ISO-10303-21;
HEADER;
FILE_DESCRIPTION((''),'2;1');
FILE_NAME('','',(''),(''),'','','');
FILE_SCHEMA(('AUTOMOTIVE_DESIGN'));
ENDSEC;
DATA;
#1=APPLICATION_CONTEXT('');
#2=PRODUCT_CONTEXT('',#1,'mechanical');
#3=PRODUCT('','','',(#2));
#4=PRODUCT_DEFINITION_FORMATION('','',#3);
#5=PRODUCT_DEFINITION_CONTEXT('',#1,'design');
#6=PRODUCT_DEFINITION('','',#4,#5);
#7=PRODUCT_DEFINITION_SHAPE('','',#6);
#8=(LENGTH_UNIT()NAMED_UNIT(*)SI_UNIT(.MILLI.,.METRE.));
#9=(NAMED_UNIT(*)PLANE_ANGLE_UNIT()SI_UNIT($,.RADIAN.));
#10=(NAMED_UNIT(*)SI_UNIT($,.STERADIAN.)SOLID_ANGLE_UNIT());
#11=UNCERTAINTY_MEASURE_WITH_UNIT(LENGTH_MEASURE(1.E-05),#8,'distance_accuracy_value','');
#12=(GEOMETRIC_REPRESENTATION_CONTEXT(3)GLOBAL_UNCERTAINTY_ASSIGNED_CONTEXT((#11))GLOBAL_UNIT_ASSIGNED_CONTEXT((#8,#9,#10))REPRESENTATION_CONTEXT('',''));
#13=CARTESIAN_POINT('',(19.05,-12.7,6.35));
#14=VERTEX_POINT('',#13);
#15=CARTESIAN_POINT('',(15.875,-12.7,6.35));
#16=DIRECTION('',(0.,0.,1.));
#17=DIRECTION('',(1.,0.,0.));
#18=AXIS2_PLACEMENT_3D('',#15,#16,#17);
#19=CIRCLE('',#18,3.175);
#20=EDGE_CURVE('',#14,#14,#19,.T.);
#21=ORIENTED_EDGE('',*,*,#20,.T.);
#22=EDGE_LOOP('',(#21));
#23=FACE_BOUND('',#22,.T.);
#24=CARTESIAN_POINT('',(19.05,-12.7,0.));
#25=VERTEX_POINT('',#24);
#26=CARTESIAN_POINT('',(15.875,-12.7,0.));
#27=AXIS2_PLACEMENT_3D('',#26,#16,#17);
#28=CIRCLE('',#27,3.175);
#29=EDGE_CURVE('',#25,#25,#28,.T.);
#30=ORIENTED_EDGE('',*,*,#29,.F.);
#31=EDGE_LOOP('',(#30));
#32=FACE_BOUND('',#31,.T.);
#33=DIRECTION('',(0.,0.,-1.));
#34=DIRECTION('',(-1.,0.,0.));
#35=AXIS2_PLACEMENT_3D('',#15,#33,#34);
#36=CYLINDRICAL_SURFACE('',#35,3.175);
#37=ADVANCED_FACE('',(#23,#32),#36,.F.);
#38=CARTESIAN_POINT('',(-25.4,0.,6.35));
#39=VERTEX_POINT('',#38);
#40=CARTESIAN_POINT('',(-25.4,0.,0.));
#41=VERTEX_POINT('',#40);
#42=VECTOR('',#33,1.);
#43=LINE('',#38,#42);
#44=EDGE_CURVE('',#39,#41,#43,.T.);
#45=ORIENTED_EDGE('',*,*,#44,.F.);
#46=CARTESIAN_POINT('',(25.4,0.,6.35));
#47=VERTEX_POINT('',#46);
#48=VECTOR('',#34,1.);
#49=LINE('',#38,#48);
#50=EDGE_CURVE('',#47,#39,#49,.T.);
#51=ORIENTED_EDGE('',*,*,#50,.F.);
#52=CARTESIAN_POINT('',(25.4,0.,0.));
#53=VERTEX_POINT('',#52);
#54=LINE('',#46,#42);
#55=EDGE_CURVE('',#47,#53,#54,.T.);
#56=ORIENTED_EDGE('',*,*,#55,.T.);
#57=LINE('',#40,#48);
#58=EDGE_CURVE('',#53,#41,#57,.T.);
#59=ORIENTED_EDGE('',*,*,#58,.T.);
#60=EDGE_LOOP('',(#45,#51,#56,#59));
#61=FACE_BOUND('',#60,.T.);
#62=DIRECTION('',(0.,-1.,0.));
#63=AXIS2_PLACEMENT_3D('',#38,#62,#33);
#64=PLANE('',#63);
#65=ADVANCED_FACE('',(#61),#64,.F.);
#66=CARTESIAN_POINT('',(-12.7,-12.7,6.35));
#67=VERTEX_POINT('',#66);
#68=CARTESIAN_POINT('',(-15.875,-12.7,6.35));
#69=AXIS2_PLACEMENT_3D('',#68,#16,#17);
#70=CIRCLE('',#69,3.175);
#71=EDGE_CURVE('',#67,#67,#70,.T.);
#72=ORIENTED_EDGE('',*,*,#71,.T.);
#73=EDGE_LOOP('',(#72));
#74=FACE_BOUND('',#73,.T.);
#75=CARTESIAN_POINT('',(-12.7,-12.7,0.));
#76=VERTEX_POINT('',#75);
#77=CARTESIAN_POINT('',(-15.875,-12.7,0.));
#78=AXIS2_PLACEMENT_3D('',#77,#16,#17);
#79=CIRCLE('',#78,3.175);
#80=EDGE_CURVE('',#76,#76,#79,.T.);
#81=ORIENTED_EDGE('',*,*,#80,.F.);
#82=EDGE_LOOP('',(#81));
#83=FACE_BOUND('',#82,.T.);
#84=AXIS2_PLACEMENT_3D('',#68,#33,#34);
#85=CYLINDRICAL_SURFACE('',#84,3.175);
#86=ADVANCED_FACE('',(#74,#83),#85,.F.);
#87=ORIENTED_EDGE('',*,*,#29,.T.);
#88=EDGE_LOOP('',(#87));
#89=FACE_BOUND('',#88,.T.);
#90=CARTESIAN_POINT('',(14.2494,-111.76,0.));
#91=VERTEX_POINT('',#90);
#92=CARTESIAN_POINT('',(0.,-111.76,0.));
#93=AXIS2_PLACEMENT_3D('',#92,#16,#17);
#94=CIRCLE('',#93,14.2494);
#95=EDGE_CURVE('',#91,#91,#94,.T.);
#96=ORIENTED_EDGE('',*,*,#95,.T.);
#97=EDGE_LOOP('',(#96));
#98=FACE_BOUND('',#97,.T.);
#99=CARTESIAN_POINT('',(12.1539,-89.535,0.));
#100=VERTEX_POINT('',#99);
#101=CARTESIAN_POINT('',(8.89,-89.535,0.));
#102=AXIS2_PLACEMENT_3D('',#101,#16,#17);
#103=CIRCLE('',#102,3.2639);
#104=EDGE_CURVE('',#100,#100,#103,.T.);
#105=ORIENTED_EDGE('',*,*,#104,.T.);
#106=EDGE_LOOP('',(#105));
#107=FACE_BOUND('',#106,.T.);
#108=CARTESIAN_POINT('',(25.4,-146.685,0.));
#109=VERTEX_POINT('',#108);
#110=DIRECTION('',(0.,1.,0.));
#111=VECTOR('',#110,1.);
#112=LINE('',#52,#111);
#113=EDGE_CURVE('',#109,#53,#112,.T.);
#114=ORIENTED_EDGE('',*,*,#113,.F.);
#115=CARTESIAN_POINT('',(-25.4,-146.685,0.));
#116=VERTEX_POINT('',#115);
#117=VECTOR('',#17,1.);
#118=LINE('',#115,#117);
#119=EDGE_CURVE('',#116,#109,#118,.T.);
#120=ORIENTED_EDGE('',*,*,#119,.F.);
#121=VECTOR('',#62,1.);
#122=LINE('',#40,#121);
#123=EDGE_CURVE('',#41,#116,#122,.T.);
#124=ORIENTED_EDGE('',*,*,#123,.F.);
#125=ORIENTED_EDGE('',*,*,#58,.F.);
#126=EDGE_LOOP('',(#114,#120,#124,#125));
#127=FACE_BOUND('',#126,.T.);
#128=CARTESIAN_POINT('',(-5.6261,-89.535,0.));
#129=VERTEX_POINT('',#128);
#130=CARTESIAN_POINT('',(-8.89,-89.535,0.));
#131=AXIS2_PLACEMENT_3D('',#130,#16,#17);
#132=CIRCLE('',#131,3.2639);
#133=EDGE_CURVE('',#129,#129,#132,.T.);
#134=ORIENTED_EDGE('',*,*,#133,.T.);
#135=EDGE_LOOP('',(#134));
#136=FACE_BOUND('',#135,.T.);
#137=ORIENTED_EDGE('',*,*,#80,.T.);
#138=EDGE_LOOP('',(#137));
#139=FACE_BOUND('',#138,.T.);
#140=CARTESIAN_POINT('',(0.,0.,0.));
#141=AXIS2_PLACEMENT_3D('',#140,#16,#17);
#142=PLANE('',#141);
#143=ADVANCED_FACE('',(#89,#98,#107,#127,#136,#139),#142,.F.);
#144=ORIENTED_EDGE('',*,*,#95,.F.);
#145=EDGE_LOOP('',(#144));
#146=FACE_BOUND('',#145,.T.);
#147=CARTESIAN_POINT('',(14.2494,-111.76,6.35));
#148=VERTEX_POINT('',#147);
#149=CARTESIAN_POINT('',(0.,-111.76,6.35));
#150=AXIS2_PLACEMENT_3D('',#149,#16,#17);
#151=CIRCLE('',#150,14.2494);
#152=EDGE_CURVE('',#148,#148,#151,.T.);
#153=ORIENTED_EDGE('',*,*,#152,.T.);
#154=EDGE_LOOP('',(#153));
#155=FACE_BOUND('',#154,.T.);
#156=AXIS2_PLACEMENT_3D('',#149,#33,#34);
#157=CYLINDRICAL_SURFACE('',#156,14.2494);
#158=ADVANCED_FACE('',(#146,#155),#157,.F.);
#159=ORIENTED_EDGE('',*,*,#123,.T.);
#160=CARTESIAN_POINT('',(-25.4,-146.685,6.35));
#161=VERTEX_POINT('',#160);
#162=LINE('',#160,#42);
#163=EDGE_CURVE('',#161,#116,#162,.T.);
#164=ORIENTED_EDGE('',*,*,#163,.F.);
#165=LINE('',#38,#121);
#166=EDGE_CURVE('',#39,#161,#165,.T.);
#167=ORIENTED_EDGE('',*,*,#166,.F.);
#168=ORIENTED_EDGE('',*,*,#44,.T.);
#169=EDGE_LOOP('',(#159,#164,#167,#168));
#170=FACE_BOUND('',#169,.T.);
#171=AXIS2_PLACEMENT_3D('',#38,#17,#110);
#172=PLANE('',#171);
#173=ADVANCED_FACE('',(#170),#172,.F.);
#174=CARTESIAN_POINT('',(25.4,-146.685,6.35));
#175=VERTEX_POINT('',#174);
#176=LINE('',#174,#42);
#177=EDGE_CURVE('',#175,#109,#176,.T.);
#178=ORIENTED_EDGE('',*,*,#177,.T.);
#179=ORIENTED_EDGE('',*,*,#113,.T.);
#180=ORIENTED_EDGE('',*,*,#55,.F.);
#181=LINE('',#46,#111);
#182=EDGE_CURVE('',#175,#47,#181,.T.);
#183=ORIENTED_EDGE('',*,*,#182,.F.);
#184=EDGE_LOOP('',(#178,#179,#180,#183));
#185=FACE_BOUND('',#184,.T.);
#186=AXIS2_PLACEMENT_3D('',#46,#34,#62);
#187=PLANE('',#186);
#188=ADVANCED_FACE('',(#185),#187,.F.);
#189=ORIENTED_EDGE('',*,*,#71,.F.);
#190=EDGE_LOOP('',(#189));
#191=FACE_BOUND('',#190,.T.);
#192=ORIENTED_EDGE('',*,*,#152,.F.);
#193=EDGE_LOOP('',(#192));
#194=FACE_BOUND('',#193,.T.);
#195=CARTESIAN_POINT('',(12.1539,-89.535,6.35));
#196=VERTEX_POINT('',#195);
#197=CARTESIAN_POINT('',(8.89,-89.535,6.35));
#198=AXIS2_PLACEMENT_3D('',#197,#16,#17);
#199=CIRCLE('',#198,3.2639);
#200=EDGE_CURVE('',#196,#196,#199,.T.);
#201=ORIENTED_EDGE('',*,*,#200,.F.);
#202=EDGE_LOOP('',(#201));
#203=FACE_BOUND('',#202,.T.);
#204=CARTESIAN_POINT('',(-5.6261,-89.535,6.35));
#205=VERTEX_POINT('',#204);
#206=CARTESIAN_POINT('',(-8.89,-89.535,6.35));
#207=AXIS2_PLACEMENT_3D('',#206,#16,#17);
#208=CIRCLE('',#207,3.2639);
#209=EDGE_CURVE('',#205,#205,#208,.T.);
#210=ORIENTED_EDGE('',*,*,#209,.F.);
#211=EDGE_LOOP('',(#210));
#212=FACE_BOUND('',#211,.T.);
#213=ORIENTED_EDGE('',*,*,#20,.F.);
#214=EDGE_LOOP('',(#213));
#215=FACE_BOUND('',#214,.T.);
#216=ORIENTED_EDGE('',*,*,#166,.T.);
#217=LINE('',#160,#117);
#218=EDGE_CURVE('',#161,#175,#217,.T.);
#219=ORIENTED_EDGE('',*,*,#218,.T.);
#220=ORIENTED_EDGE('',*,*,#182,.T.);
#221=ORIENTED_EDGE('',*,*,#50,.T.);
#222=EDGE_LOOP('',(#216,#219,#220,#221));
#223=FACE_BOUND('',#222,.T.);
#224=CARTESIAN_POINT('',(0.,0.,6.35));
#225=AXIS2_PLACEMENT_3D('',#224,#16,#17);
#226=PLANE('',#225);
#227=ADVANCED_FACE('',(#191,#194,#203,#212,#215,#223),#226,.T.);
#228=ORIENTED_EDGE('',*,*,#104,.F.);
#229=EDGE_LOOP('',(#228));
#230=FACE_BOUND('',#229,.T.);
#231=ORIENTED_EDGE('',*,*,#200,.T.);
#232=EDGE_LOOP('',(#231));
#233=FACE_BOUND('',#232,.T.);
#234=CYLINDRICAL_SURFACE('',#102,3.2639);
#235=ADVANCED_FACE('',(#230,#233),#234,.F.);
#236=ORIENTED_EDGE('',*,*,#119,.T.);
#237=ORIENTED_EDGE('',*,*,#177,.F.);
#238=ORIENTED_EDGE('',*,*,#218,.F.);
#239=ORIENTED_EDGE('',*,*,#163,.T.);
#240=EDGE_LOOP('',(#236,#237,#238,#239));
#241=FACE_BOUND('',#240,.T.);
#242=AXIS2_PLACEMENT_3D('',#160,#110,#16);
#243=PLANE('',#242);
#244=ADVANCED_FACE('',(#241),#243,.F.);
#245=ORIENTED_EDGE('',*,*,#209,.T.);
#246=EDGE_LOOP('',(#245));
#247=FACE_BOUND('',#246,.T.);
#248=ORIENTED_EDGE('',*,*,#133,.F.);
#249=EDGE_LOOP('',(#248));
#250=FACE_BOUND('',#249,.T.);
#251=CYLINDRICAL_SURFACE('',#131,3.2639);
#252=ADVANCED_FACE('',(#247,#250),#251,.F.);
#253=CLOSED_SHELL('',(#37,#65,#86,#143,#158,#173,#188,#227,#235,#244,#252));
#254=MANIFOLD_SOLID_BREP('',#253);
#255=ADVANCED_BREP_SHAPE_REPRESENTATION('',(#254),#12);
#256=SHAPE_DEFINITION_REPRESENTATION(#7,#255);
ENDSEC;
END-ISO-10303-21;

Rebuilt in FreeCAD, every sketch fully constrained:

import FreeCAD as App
import Part
import Sketcher

V = App.Vector
Q = App.Units.Quantity

doc = App.newDocument("Part")
params = doc.addObject("Spreadsheet::Sheet", "Params")
for row, (alias, value) in enumerate([
    ("sketch1_diameter", "0.25 in"),
    ("sketch1_width", "2 in"),
    ("sketch1_diameter2", "1.122 in"),
    ("sketch1_height", "5.775 in"),
    ("pad1_length", "0.25 in"),
    ("sketch2_diameter", "0.257 in"),
], start=1):
    params.set(f"A{row}", alias)
    params.set(f"B{row}", "=" + value)
    params.setAlias(f"B{row}", alias)

body = doc.addObject("PartDesign::Body", "Body")

sketch1 = body.newObject("Sketcher::SketchObject", "Sketch")
sketch1.AttachmentSupport = (doc.getObject("XY_Plane"), [""])
sketch1.MapMode = "FlatFace"
sketch1.addGeometry(Part.LineSegment(V(-25.4, 0, 0), V(-25.4, -146.7, 0)), False)
sketch1.addGeometry(Part.LineSegment(V(-25.4, -146.7, 0), V(25.4, -146.7, 0)), False)
sketch1.addGeometry(Part.LineSegment(V(25.4, -146.7, 0), V(25.4, 0, 0)), False)
sketch1.addGeometry(Part.LineSegment(V(25.4, 0, 0), V(-25.4, 0, 0)), False)
sketch1.addGeometry(Part.Circle(V(0, -111.8, 0), V(0, 0, 1), 14.2), False)
sketch1.addGeometry(Part.Circle(V(-15.9, -12.7, 0), V(0, 0, 1), 3.2), False)
sketch1.addGeometry(Part.Circle(V(15.9, -12.7, 0), V(0, 0, 1), 3.2), False)
sketch1.addConstraint(Sketcher.Constraint("Coincident", 0, 2, 1, 1))
sketch1.addConstraint(Sketcher.Constraint("Coincident", 1, 2, 2, 1))
sketch1.addConstraint(Sketcher.Constraint("Coincident", 2, 2, 3, 1))
sketch1.addConstraint(Sketcher.Constraint("Coincident", 3, 2, 0, 1))
sketch1.addConstraint(Sketcher.Constraint("Vertical", 0))
sketch1.addConstraint(Sketcher.Constraint("Horizontal", 1))
sketch1.addConstraint(Sketcher.Constraint("Vertical", 2))
sketch1.addConstraint(Sketcher.Constraint("Horizontal", 3))
sketch1.addConstraint(Sketcher.Constraint("Equal", 5, 6))
sketch1.addConstraint(Sketcher.Constraint("Symmetric", 2, 2, 3, 2, -1, 1))
sketch1.addConstraint(Sketcher.Constraint("Symmetric", 5, 3, 6, 3, -2))
sketch1.addConstraint(Sketcher.Constraint("PointOnObject", 4, 3, -2))
sketch1.addConstraint(Sketcher.Constraint("Diameter", 5, Q("0.25 in")))
sketch1.addConstraint(Sketcher.Constraint("DistanceX", 1, 1, 1, 2, Q("2 in")))
sketch1.addConstraint(Sketcher.Constraint("Diameter", 4, Q("1.122 in")))
sketch1.addConstraint(Sketcher.Constraint("DistanceY", 4, 3, -1, 1, Q("4.4 in")))
sketch1.addConstraint(Sketcher.Constraint("DistanceY", 5, 3, -1, 1, Q("0.5 in")))
sketch1.addConstraint(Sketcher.Constraint("DistanceY", 0, 2, 0, 1, Q("5.775 in")))
sketch1.addConstraint(Sketcher.Constraint("DistanceX", 5, 3, 6, 3, Q("1.25 in")))
sketch1.setExpression("Constraints[12]", "Params.sketch1_diameter")
sketch1.setExpression("Constraints[13]", "Params.sketch1_width")
sketch1.setExpression("Constraints[14]", "Params.sketch1_diameter2")
sketch1.setExpression("Constraints[17]", "Params.sketch1_height")
pad1 = body.newObject("PartDesign::Pad", "Pad")
pad1.Profile = sketch1
pad1.setExpression("Length", "Params.pad1_length")

sketch2 = body.newObject("Sketcher::SketchObject", "Sketch001")
sketch2.AttachmentSupport = (doc.getObject("XY_Plane"), [""])
sketch2.MapMode = "FlatFace"
sketch2.AttachmentOffset = App.Placement(V(0, 0, 0.25 * 25.4), App.Rotation())
sketch2.addGeometry(Part.Circle(V(8.9, -89.5, 0), V(0, 0, 1), 3.3), False)
sketch2.addGeometry(Part.Circle(V(-8.9, -89.5, 0), V(0, 0, 1), 3.3), False)
sketch2.addConstraint(Sketcher.Constraint("Equal", 0, 1))
sketch2.addConstraint(Sketcher.Constraint("Symmetric", 0, 3, 1, 3, -2))
sketch2.addConstraint(Sketcher.Constraint("Diameter", 0, Q("0.257 in")))
sketch2.addConstraint(Sketcher.Constraint("DistanceX", 1, 3, 0, 3, Q("0.7 in")))
sketch2.addConstraint(Sketcher.Constraint("DistanceY", 0, 3, -1, 1, Q("3.525 in")))
sketch2.setExpression("Constraints[2]", "Params.sketch2_diameter")
pocket1 = body.newObject("PartDesign::Pocket", "Pocket")
pocket1.Profile = sketch2
pocket1.Type = "ThroughAll"

doc.recompute()
